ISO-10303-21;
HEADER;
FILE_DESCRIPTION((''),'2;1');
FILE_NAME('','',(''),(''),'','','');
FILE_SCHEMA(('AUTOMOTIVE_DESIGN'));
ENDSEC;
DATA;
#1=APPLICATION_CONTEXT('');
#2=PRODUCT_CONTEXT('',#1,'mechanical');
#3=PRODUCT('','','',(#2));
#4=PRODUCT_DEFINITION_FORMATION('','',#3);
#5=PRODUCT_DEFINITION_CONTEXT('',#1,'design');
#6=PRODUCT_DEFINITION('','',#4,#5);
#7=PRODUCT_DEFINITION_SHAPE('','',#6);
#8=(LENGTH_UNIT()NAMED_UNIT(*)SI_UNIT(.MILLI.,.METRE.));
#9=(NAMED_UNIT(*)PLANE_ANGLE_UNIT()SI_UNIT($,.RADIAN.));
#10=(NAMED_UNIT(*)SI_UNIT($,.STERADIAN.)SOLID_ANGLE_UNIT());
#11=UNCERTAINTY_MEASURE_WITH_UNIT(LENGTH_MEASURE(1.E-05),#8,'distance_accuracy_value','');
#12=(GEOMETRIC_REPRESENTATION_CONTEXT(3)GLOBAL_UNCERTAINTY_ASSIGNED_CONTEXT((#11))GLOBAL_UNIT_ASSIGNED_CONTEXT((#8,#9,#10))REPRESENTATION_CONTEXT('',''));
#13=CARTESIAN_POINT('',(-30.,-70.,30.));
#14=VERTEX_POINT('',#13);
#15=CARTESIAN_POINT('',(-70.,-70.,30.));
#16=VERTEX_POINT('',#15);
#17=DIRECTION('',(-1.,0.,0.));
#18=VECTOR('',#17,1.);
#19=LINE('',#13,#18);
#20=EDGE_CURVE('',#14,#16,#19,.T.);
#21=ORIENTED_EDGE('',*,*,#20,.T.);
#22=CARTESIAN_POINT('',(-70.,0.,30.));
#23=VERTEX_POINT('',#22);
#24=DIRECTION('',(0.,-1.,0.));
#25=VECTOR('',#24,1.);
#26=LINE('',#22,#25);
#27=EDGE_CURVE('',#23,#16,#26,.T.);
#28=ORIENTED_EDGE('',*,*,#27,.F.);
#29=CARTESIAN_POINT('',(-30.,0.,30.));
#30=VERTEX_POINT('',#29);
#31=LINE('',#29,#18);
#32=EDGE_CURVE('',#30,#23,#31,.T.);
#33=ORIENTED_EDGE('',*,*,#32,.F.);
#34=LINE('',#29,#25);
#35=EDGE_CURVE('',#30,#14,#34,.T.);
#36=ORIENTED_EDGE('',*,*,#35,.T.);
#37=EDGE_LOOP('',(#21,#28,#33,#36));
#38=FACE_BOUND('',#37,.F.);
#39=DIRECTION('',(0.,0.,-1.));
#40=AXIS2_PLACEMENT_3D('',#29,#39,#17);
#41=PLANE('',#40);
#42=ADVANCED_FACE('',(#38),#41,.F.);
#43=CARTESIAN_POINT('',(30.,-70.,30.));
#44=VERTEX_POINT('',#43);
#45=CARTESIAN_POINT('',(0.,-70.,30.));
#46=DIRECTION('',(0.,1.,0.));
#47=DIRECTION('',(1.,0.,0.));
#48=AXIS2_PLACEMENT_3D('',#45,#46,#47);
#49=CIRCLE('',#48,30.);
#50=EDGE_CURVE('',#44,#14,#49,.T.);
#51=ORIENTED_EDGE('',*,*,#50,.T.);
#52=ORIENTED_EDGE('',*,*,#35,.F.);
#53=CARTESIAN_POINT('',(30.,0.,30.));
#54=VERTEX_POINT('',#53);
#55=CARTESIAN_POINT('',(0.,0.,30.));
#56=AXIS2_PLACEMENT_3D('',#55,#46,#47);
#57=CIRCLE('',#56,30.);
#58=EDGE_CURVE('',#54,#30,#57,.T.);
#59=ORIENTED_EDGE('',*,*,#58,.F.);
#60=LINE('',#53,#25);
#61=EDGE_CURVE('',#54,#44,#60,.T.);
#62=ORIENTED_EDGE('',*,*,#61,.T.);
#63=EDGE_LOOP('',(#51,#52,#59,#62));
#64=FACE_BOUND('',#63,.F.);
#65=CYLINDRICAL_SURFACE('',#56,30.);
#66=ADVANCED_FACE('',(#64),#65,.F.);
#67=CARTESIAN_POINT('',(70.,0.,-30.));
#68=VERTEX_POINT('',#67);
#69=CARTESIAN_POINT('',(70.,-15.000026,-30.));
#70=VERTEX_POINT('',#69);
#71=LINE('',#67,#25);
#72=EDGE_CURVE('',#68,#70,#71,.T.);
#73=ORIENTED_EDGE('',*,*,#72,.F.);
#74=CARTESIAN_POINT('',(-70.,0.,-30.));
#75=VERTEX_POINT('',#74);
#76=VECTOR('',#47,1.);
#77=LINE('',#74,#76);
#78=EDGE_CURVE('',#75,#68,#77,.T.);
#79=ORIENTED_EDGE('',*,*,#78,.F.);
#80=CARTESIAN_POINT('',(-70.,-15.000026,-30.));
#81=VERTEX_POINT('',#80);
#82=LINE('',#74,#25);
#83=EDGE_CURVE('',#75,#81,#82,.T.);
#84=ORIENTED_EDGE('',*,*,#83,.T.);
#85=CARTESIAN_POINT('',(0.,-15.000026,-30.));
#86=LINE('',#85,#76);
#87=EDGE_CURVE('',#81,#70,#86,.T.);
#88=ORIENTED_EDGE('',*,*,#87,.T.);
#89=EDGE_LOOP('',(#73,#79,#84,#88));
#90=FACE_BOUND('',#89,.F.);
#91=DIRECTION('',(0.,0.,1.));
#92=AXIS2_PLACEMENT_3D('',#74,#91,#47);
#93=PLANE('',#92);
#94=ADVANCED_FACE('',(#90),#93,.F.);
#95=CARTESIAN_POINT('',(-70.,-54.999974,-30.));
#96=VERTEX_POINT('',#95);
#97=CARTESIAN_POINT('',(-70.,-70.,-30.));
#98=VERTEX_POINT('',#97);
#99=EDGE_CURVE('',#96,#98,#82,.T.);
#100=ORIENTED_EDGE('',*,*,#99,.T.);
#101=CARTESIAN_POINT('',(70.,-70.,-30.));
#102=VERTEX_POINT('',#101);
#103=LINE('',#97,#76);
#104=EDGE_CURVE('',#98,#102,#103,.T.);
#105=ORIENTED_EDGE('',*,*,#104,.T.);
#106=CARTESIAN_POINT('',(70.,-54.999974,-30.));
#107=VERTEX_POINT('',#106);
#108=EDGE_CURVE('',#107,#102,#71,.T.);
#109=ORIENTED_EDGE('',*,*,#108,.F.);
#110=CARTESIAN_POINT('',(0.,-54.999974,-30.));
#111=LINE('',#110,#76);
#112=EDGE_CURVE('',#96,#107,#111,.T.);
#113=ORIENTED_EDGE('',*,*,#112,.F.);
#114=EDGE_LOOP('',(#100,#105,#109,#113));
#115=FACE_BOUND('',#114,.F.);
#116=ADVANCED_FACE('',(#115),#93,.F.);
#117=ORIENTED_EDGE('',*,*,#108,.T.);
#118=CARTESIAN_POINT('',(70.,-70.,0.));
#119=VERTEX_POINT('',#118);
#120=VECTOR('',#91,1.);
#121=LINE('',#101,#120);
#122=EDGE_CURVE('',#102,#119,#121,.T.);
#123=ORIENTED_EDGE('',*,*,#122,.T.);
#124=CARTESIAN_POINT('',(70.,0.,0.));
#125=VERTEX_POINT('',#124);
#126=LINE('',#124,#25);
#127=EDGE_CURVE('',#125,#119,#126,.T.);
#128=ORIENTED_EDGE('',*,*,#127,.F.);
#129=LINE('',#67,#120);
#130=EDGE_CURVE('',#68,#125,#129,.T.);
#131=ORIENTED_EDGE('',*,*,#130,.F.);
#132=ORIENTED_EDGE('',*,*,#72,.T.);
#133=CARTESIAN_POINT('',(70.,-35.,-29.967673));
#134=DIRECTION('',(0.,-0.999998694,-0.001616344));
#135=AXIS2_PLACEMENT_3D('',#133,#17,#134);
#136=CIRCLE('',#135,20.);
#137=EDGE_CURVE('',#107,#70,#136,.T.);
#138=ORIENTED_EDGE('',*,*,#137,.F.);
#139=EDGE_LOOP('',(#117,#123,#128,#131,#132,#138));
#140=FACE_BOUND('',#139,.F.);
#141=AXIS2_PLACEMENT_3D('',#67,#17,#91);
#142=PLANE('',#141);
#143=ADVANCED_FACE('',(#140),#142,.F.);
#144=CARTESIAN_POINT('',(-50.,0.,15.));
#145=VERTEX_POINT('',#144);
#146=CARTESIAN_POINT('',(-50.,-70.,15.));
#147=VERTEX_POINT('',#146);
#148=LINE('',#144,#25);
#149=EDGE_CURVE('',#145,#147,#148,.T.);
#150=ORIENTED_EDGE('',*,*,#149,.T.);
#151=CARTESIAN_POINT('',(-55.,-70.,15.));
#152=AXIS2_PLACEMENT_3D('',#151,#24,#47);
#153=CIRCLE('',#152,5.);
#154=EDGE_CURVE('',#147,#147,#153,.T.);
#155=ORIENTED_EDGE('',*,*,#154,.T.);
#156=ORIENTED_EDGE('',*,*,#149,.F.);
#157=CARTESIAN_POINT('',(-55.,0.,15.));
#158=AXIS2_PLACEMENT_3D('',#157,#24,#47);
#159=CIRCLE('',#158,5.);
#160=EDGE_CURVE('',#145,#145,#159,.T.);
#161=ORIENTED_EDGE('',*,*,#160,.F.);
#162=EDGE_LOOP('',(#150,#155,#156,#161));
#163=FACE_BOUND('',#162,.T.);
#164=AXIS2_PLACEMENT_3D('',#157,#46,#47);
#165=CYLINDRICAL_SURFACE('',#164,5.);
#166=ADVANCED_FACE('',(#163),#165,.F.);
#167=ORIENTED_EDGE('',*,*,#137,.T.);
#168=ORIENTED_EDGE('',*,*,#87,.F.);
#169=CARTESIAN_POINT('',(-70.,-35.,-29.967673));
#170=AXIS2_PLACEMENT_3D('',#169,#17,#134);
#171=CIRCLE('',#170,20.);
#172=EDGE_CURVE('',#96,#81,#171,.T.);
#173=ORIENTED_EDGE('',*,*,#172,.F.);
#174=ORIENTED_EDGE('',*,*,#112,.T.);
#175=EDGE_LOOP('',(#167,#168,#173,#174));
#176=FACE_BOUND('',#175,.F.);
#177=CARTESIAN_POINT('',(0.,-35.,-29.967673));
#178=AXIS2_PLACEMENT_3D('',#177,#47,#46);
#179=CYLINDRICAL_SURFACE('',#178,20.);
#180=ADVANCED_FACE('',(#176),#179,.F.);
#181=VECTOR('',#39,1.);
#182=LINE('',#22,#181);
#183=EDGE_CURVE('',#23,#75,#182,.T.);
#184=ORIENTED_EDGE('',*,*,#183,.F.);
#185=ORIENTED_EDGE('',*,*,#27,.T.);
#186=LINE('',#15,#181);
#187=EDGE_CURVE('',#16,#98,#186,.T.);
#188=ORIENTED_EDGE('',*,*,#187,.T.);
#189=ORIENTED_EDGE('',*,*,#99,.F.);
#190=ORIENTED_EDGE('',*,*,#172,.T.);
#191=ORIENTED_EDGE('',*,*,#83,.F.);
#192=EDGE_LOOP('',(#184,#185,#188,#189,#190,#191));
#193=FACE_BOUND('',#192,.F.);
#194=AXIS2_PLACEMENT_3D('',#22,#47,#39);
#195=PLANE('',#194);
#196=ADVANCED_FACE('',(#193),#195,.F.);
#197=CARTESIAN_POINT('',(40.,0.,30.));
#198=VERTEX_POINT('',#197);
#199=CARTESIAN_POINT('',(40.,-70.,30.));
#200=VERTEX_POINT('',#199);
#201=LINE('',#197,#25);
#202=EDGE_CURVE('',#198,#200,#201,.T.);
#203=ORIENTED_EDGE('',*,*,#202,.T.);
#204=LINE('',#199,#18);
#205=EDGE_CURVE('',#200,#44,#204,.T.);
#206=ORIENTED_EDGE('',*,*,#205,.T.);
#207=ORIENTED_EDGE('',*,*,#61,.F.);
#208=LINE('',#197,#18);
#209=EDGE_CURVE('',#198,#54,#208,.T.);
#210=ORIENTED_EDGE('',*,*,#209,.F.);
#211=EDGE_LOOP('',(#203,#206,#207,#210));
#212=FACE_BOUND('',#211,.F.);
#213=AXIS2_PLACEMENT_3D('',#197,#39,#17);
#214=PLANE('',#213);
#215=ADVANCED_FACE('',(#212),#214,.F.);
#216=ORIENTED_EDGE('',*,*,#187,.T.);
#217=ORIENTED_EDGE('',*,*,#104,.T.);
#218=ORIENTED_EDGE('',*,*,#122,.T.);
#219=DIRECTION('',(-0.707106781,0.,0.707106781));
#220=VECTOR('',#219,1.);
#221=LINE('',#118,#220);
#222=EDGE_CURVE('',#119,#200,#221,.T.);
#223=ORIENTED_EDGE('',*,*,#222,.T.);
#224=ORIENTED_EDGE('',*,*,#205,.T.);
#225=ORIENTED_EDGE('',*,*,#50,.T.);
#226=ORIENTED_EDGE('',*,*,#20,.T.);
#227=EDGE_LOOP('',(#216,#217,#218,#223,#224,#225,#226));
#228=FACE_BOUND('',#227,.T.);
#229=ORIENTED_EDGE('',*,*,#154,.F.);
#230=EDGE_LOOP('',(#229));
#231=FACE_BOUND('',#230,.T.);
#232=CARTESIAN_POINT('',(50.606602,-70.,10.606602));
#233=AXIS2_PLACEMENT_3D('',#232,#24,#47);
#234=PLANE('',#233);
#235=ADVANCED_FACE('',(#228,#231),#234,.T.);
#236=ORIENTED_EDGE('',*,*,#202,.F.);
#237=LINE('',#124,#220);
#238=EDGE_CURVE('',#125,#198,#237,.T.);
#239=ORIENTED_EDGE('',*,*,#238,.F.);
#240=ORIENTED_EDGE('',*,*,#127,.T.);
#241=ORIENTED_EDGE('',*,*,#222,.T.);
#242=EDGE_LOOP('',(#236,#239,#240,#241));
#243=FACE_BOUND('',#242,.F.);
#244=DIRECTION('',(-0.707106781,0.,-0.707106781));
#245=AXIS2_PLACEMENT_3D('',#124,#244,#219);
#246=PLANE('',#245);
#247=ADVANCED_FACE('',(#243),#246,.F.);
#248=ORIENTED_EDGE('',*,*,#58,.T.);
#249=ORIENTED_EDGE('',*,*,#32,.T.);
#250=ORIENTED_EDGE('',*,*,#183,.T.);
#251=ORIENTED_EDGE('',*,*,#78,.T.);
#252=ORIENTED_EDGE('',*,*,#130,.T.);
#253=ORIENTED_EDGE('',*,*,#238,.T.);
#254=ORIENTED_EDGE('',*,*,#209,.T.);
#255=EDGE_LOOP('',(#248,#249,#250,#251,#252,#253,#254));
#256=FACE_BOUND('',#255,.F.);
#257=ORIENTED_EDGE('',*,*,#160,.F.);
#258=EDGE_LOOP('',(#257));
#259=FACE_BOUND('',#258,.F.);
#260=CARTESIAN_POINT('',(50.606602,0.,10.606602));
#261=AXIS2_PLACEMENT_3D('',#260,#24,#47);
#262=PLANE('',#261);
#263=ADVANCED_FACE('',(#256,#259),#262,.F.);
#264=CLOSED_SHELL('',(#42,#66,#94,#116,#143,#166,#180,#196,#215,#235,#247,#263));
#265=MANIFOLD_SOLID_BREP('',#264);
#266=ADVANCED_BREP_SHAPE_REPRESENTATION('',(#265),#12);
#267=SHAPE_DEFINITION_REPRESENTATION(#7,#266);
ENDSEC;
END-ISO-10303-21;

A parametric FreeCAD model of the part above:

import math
import FreeCAD as App
import Part
import Sketcher
from FreeCAD import Vector
Q = App.Units.Quantity

doc = App.newDocument("Part")
params = doc.addObject("Spreadsheet::Sheet", "Params")
for row, (alias, value) in enumerate([
    ("sketch1_diameter", "10 mm"),
    ("sketch1_radius", "30 mm"),
    ("sketch1_width", "10 mm"),
    ("sketch1_width2", "40 mm"),
    ("sketch1_height", "60 mm"),
    ("pad1_length", "70 mm"),
    ("sketch2_diameter", "40 mm"),
    ("pocket1_length", "140 mm"),
], start=1):
    params.set(f"A{row}", alias)
    params.set(f"B{row}", "=" + value)
    params.setAlias(f"B{row}", alias)

body = doc.addObject("PartDesign::Body", "Body")

sketch1 = body.newObject("Sketcher::SketchObject", "Sketch")
sketch1.AttachmentSupport = (doc.getObject("XZ_Plane"), [""])
sketch1.MapMode = "FlatFace"
sketch1.addGeometry([
    Part.LineSegment(Vector(70, 0, 0), Vector(40, 30, 0)),
    Part.LineSegment(Vector(40, 30, 0), Vector(30, 30, 0)),
    Part.ArcOfCircle(Part.Circle(Vector(0, 30, 0), Vector(0, 0, 1), 30), math.radians(180), math.radians(360)),
    Part.LineSegment(Vector(-30, 30, 0), Vector(-70, 30, 0)),
    Part.LineSegment(Vector(-70, 30, 0), Vector(-70, -30, 0)),
    Part.LineSegment(Vector(-70, -30, 0), Vector(70, -30, 0)),
    Part.LineSegment(Vector(70, -30, 0), Vector(70, 0, 0)),
    Part.Circle(Vector(-55, 15, 0), Vector(0, 0, 1), 5),
], False)
sketch1.addConstraint([
    Sketcher.Constraint("Coincident", 0, 2, 1, 1),
    Sketcher.Constraint("Coincident", 1, 2, 2, 2),
    Sketcher.Constraint("Coincident", 2, 1, 3, 1),
    Sketcher.Constraint("Coincident", 3, 2, 4, 1),
    Sketcher.Constraint("Coincident", 4, 2, 5, 1),
    Sketcher.Constraint("Coincident", 5, 2, 6, 1),
    Sketcher.Constraint("Coincident", 6, 2, 0, 1),
    Sketcher.Constraint("Horizontal", 1),
    Sketcher.Constraint("Horizontal", 3),
    Sketcher.Constraint("Vertical", 4),
    Sketcher.Constraint("Horizontal", 5),
    Sketcher.Constraint("Vertical", 6),
    Sketcher.Constraint("Symmetric", 3, 2, 5, 2, -1, 1),
    Sketcher.Constraint("Symmetric", 1, 2, 2, 1, -2),
    Sketcher.Constraint("PointOnObject", 6, 2, -1),
    Sketcher.Constraint("Horizontal", 2, 3, 0, 2),
    Sketcher.Constraint("Diameter", 7, Q("10 mm")),
    Sketcher.Constraint("Radius", 2, Q("30 mm")),
    Sketcher.Constraint("DistanceX", 1, 2, 1, 1, Q("10 mm")),
    Sketcher.Constraint("DistanceX", 3, 2, 3, 1, Q("40 mm")),
    Sketcher.Constraint("DistanceY", 4, 2, 4, 1, Q("60 mm")),
    Sketcher.Constraint("DistanceX", 7, 3, -1, 1, Q("55 mm")),
    Sketcher.Constraint("DistanceY", -1, 1, 7, 3, Q("15 mm")),
])
sketch1.setExpression("Constraints[16]", "Params.sketch1_diameter")
sketch1.setExpression("Constraints[17]", "Params.sketch1_radius")
sketch1.setExpression("Constraints[18]", "Params.sketch1_width")
sketch1.setExpression("Constraints[19]", "Params.sketch1_width2")
sketch1.setExpression("Constraints[20]", "Params.sketch1_height")
pad1 = body.newObject("PartDesign::Pad", "Pad")
pad1.Profile = sketch1
pad1.setExpression("Length", "Params.pad1_length")

sketch2 = body.newObject("Sketcher::SketchObject", "Sketch001")
sketch2.AttachmentSupport = (doc.getObject("YZ_Plane"), [""])
sketch2.MapMode = "FlatFace"
sketch2.addGeometry(Part.Circle(Vector(-35, -30, 0), Vector(0, 0, 1), 20), False)
sketch2.addConstraint([
    Sketcher.Constraint("Diameter", 0, Q("40 mm")),
    Sketcher.Constraint("DistanceX", 0, 3, -1, 1, Q("35 mm")),
    Sketcher.Constraint("DistanceY", 0, 3, -1, 1, Q("29.967673 mm")),
])
sketch2.setExpression("Constraints[0]", "Params.sketch2_diameter")
pocket1 = body.newObject("PartDesign::Pocket", "Pocket")
pocket1.Profile = sketch2
pocket1.setExpression("Length", "Params.pocket1_length")
pocket1.Midplane = True

doc.recompute()
